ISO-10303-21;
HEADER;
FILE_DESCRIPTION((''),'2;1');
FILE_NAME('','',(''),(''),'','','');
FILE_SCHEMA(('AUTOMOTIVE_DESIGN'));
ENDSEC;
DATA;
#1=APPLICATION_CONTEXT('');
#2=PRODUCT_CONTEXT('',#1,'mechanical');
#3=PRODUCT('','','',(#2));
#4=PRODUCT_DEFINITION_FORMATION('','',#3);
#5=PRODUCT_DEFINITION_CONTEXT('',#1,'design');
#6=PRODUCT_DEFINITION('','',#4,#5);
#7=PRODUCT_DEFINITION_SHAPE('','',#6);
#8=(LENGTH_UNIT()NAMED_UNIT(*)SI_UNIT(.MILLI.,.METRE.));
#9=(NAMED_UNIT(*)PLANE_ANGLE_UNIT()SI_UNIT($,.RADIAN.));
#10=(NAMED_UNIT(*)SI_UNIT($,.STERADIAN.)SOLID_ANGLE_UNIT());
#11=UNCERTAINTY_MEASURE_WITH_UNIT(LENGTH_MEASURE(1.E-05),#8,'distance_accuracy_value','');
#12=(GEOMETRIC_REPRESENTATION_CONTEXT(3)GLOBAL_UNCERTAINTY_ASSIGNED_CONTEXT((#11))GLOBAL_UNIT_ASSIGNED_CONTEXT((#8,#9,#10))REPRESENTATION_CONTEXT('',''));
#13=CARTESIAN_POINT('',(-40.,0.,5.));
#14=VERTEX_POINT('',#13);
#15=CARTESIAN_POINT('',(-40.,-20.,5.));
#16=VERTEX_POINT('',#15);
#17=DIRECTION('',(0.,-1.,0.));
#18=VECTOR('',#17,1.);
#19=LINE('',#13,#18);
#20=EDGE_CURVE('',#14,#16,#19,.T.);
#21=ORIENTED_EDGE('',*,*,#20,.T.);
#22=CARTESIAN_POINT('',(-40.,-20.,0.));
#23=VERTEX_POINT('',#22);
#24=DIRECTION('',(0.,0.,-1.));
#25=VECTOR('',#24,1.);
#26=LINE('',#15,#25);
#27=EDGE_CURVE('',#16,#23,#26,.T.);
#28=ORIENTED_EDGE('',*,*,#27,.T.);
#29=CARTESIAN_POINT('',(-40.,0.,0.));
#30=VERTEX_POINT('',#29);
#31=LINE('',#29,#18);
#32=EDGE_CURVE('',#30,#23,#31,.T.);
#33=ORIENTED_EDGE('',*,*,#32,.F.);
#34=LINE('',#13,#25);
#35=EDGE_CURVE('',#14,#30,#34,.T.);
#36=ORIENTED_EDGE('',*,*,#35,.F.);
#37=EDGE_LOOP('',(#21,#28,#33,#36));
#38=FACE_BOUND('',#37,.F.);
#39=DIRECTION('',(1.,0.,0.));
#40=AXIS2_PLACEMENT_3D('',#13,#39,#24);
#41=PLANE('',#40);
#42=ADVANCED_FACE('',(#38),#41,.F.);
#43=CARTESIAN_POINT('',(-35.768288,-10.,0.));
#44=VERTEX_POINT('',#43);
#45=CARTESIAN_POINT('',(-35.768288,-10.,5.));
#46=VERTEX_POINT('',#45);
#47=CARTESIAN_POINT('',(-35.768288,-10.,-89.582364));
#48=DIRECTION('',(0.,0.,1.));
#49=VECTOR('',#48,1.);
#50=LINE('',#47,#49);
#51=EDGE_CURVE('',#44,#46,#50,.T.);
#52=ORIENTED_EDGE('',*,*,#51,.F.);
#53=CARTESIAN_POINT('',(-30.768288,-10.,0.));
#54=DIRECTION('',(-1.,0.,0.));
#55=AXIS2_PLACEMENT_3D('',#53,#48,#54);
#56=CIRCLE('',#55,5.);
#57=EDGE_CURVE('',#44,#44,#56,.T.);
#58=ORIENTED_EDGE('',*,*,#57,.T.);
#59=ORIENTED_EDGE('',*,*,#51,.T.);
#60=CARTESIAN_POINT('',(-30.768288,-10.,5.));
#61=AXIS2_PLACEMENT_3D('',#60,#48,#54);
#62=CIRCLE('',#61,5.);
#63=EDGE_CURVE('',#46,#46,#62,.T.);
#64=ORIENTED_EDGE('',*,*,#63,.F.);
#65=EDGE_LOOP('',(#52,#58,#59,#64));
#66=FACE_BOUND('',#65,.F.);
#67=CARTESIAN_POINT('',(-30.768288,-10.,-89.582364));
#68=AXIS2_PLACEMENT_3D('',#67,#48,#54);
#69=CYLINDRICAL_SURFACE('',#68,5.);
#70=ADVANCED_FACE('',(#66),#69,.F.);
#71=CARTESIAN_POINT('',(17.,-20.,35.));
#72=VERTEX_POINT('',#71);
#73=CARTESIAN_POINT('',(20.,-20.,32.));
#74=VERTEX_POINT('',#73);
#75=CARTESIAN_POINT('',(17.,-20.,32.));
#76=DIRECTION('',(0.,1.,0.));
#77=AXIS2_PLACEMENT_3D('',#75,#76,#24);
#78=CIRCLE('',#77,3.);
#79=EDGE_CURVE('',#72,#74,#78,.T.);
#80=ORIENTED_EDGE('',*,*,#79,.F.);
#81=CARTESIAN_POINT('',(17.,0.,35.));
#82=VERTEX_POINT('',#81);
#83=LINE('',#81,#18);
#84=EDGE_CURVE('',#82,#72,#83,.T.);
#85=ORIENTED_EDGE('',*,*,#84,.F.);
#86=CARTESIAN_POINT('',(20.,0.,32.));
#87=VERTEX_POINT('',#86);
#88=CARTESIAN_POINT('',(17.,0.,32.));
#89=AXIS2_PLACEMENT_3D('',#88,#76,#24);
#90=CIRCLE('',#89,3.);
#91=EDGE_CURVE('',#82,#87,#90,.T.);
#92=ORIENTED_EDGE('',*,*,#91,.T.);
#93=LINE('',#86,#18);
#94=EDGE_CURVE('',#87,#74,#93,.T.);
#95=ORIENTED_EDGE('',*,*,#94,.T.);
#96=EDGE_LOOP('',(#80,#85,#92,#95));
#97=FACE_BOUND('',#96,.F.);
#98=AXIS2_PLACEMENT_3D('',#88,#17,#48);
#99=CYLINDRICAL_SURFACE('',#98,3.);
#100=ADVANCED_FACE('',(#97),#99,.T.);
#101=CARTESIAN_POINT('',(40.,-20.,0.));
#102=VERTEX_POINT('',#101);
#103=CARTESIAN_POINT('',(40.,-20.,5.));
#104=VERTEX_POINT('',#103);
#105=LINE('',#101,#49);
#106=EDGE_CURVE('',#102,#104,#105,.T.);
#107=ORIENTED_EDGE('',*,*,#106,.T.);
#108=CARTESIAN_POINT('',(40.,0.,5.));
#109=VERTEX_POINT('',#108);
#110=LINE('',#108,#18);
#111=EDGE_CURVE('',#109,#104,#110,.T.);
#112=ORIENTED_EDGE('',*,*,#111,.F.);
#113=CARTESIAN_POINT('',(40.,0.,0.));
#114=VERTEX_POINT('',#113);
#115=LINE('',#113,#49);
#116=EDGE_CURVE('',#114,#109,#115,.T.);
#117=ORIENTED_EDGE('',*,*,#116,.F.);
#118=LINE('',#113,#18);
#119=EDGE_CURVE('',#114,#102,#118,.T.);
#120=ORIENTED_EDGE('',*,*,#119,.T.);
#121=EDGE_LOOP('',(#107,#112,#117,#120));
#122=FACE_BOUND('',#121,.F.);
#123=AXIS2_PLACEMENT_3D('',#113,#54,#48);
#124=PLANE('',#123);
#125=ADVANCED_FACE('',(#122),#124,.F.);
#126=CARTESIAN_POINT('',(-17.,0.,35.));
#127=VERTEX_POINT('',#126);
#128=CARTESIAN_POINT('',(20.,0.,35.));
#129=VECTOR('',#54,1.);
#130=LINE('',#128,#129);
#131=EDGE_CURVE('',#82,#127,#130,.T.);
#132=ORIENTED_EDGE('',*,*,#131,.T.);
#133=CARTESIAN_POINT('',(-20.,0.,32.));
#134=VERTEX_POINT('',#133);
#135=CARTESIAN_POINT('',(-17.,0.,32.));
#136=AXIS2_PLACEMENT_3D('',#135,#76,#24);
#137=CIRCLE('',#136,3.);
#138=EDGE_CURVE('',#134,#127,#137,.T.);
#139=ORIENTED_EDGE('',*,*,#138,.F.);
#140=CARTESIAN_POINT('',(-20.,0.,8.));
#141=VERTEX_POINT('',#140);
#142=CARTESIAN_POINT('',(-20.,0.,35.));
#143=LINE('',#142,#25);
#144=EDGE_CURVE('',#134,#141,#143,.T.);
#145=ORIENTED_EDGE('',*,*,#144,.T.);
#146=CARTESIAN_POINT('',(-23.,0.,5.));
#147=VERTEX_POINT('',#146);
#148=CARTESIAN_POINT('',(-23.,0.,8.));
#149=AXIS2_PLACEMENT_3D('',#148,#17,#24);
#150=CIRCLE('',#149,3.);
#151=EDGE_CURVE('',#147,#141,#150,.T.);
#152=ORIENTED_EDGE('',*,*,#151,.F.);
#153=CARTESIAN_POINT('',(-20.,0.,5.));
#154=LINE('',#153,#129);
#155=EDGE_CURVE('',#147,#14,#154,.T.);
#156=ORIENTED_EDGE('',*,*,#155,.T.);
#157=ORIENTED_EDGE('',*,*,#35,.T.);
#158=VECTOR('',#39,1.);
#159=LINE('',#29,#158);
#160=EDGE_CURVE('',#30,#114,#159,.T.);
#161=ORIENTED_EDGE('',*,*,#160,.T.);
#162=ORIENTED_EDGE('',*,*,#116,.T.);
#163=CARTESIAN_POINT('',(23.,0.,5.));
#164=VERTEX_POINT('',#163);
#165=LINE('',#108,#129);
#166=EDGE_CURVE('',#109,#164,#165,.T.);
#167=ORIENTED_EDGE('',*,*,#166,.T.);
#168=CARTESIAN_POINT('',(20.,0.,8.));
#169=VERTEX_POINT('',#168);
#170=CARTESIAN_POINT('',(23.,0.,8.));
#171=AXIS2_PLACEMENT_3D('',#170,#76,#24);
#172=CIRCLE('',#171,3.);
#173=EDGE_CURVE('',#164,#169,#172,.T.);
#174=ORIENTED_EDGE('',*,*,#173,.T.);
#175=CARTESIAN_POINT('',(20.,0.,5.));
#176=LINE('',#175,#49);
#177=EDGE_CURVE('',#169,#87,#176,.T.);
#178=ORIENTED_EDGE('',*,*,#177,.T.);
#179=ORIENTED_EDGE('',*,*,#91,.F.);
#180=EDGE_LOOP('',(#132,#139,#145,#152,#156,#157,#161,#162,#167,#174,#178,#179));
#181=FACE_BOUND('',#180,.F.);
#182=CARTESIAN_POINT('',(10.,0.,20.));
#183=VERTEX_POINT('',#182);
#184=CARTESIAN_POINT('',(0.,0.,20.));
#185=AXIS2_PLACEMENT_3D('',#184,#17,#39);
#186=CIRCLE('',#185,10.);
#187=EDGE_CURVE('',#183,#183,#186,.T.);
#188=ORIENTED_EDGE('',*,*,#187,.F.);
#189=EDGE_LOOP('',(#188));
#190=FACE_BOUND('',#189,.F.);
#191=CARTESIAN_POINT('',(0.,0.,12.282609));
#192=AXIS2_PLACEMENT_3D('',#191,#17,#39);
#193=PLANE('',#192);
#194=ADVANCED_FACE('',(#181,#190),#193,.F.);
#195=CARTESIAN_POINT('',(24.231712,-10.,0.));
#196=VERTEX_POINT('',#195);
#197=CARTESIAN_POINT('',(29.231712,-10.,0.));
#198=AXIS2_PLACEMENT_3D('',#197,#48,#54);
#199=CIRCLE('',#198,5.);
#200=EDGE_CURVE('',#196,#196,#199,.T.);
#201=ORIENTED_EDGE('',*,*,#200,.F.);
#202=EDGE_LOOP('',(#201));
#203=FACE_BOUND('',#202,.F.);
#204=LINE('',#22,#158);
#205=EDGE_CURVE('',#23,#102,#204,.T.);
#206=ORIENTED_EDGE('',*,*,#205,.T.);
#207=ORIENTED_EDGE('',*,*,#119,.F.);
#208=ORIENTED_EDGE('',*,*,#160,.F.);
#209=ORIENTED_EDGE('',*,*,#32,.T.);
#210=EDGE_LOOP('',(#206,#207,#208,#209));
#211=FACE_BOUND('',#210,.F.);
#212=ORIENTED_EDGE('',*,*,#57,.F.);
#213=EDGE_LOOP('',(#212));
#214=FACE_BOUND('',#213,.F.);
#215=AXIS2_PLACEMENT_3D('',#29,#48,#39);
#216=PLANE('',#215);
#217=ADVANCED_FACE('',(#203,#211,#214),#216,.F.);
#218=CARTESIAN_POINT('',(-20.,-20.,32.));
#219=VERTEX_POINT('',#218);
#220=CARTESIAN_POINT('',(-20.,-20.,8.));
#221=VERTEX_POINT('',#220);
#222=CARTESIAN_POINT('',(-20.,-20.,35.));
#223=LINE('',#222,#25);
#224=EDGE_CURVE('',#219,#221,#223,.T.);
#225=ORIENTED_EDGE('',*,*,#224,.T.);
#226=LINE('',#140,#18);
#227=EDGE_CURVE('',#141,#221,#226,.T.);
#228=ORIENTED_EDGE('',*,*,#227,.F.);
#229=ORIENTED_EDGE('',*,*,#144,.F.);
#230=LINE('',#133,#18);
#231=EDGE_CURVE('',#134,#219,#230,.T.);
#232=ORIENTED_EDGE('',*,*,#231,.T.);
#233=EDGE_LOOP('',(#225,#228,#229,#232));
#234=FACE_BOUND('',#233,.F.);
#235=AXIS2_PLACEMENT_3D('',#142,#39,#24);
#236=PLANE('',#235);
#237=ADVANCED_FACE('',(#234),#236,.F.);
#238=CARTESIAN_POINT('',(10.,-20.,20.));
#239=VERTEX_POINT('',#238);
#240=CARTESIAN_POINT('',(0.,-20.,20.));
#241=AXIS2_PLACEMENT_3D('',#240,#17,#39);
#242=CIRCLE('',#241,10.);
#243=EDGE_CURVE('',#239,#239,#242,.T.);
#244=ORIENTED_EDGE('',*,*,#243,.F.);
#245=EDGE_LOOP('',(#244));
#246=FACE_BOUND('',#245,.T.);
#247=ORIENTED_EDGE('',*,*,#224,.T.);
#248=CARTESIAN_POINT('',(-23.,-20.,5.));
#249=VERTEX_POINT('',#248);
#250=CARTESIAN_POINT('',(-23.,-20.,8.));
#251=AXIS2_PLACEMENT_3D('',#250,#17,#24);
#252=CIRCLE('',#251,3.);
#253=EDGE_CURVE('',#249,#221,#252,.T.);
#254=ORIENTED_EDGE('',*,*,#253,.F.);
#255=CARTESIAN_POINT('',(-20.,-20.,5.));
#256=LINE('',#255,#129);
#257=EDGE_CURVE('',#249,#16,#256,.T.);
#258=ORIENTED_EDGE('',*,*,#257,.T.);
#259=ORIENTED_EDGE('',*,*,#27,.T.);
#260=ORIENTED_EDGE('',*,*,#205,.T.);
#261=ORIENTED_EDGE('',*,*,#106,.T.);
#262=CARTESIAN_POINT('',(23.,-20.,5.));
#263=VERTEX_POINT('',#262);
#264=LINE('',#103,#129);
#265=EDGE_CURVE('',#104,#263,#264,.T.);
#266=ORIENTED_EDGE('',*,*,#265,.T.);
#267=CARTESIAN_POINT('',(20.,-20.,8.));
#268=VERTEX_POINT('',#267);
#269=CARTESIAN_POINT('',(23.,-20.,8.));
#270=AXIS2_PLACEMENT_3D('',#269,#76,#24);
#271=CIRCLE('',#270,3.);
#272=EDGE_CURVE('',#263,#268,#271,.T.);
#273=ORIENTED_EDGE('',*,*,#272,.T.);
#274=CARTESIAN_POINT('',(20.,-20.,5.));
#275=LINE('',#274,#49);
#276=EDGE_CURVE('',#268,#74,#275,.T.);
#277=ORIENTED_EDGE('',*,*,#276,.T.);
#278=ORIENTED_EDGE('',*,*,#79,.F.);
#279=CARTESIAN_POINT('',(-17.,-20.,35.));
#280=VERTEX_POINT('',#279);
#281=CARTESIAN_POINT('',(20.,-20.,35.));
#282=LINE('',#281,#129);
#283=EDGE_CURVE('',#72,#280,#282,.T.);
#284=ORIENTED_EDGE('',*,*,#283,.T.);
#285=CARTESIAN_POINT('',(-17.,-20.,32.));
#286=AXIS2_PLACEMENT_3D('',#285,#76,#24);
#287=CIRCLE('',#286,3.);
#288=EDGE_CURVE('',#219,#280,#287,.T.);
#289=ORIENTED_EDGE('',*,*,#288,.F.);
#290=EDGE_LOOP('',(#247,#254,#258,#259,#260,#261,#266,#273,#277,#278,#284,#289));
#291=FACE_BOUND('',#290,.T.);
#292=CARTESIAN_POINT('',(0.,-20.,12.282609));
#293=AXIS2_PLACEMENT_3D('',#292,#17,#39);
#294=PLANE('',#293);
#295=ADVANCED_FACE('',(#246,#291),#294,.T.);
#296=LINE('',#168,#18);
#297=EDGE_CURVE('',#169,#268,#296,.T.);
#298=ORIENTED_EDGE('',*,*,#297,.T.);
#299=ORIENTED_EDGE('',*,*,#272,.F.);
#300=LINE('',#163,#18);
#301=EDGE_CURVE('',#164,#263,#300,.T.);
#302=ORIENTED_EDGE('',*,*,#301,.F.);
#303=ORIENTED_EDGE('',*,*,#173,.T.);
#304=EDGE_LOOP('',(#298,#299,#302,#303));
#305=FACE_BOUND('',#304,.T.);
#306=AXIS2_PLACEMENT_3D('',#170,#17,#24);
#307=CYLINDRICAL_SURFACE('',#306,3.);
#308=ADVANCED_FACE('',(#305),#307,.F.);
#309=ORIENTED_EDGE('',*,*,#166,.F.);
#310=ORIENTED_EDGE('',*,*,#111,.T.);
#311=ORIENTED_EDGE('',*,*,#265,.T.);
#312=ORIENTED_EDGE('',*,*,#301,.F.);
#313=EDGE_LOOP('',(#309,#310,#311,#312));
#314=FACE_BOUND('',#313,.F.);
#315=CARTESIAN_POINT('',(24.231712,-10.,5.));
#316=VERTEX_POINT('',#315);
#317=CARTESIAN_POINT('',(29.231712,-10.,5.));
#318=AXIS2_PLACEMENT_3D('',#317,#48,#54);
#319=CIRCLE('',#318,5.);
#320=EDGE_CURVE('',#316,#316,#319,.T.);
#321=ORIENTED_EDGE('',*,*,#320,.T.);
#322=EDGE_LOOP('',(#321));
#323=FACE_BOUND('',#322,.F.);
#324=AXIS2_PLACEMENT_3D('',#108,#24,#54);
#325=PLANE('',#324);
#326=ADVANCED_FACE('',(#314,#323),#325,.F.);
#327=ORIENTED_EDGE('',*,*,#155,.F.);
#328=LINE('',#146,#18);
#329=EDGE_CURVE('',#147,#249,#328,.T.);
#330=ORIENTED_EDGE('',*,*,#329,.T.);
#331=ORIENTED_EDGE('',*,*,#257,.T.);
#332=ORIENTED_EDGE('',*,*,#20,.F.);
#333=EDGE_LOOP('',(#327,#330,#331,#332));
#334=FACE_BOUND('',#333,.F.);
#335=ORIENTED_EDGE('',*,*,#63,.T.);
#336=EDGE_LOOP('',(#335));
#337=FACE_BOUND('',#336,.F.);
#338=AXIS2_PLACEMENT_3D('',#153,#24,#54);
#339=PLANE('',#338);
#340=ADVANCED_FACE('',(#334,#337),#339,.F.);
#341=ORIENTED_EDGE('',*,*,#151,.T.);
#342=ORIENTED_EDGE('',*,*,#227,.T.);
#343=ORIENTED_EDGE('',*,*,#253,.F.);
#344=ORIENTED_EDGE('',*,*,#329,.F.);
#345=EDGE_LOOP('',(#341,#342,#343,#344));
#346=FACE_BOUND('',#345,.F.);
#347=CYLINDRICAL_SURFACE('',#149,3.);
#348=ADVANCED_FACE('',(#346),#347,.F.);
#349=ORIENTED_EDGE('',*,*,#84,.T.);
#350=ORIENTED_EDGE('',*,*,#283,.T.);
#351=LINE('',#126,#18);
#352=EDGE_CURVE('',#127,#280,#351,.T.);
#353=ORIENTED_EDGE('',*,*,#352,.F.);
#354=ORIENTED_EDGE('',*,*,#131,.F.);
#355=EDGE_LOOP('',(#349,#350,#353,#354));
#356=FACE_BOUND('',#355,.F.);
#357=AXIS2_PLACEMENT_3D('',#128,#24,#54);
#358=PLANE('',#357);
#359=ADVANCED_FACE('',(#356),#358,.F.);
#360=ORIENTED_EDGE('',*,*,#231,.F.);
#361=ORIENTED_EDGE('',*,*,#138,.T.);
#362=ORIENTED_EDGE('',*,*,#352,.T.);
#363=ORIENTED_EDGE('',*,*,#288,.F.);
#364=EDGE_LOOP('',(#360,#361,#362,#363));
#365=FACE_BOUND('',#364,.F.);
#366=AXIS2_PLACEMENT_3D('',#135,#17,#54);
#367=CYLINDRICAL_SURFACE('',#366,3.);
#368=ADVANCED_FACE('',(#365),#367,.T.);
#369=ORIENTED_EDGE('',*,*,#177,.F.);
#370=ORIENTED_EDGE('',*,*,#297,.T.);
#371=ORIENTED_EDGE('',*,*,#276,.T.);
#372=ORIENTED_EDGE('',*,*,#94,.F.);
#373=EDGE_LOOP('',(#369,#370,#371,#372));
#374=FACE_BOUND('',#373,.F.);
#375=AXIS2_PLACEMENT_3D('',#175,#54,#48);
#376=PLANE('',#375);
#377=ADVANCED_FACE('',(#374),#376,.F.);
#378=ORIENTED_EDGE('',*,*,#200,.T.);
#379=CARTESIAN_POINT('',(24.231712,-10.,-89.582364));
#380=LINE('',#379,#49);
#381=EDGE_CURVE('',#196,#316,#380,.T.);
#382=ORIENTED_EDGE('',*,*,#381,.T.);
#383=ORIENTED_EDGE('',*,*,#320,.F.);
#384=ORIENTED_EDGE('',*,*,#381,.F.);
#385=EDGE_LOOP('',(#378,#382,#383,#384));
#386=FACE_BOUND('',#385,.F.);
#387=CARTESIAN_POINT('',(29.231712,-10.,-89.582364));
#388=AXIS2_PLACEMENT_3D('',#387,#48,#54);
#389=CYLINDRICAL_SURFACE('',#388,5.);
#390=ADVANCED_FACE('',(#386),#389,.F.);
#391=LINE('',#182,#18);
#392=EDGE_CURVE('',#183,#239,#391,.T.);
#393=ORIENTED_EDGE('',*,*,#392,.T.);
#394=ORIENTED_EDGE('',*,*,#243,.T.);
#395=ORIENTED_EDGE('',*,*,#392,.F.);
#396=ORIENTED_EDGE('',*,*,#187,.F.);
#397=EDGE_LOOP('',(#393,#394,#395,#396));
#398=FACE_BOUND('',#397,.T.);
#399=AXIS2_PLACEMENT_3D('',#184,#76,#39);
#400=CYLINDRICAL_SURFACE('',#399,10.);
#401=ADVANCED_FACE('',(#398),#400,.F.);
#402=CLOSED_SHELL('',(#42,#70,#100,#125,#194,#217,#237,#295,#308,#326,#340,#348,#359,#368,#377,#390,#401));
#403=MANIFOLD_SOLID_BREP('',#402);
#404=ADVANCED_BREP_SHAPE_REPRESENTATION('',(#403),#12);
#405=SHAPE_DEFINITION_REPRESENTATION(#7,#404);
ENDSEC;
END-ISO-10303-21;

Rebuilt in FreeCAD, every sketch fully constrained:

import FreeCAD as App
import Part
import Sketcher
Q = App.Units.Quantity


def edges_at(feature, points):
    """Names of the edges that pass closest to the given points."""
    edges = feature.Shape.Edges
    near = lambda p: min(range(len(edges)), key=lambda i: edges[i].distToShape(Part.Vertex(*p))[0])
    return sorted({f"Edge{near(p) + 1}" for p in points})

doc = App.newDocument("Part")
params = doc.addObject("Spreadsheet::Sheet", "Params")
for row, (alias, value) in enumerate([
    ("sketch1_diameter", "20 mm"),
    ("sketch1_width", "80 mm"),
    ("sketch1_width2", "20 mm"),
    ("sketch1_height", "5 mm"),
    ("sketch1_height2", "30 mm"),
    ("pad1_length", "20 mm"),
    ("fillet_radius", "3 mm"),
    ("sketch2_diameter", "10 mm"),
    ("hole_diameter", "10 mm"),
], start=1):
    params.set(f"A{row}", alias)
    params.set(f"B{row}", "=" + value)
    params.setAlias(f"B{row}", alias)

body = doc.addObject("PartDesign::Body", "Body")

sketch1 = body.newObject("Sketcher::SketchObject", "Sketch")
sketch1.AttachmentSupport = (doc.getObject("XZ_Plane"), [""])
sketch1.MapMode = "FlatFace"
sketch1.addGeometry([
    Part.LineSegment(App.Vector(-40, 5, 0), App.Vector(-40, 0, 0)),
    Part.LineSegment(App.Vector(-40, 0, 0), App.Vector(40, 0, 0)),
    Part.LineSegment(App.Vector(40, 0, 0), App.Vector(40, 5, 0)),
    Part.LineSegment(App.Vector(40, 5, 0), App.Vector(20, 5, 0)),
    Part.LineSegment(App.Vector(20, 5, 0), App.Vector(20, 35, 0)),
    Part.LineSegment(App.Vector(20, 35, 0), App.Vector(-20, 35, 0)),
    Part.LineSegment(App.Vector(-20, 35, 0), App.Vector(-20, 5, 0)),
    Part.LineSegment(App.Vector(-20, 5, 0), App.Vector(-40, 5, 0)),
    Part.Circle(App.Vector(0, 20, 0), App.Vector(0, 0, 1), 10),
], False)
sketch1.addConstraint([
    Sketcher.Constraint("Coincident", 0, 2, 1, 1),
    Sketcher.Constraint("Coincident", 1, 2, 2, 1),
    Sketcher.Constraint("Coincident", 2, 2, 3, 1),
    Sketcher.Constraint("Coincident", 3, 2, 4, 1),
    Sketcher.Constraint("Coincident", 4, 2, 5, 1),
    Sketcher.Constraint("Coincident", 5, 2, 6, 1),
    Sketcher.Constraint("Coincident", 6, 2, 7, 1),
    Sketcher.Constraint("Coincident", 7, 2, 0, 1),
    Sketcher.Constraint("Vertical", 0),
    Sketcher.Constraint("Horizontal", 1),
    Sketcher.Constraint("Vertical", 2),
    Sketcher.Constraint("Horizontal", 3),
    Sketcher.Constraint("Vertical", 4),
    Sketcher.Constraint("Horizontal", 5),
    Sketcher.Constraint("Vertical", 6),
    Sketcher.Constraint("Horizontal", 7),
    Sketcher.Constraint("Symmetric", 0, 2, 1, 2, -1, 1),
    Sketcher.Constraint("Symmetric", 3, 2, 6, 2, -2),
    Sketcher.Constraint("PointOnObject", 8, 3, -2),
    Sketcher.Constraint("Diameter", 8, Q("20 mm")),
    Sketcher.Constraint("DistanceX", 1, 1, 1, 2, Q("80 mm")),
    Sketcher.Constraint("DistanceX", 3, 2, 3, 1, Q("20 mm")),
    Sketcher.Constraint("DistanceY", 0, 2, 0, 1, Q("5 mm")),
    Sketcher.Constraint("DistanceY", 4, 1, 4, 2, Q("30 mm")),
    Sketcher.Constraint("DistanceY", -1, 1, 8, 3, Q("20 mm")),
])
sketch1.setExpression("Constraints[19]", "Params.sketch1_diameter")
sketch1.setExpression("Constraints[20]", "Params.sketch1_width")
sketch1.setExpression("Constraints[21]", "Params.sketch1_width2")
sketch1.setExpression("Constraints[22]", "Params.sketch1_height")
sketch1.setExpression("Constraints[23]", "Params.sketch1_height2")
pad1 = body.newObject("PartDesign::Pad", "Pad")
pad1.Profile = sketch1
pad1.setExpression("Length", "Params.pad1_length")
doc.recompute()

fillet = body.newObject("PartDesign::Fillet", "Fillet")
fillet.Base = (pad1, edges_at(pad1, [
    (20, -10, 35),
    (20, -10, 5),
    (-20, -10, 35),
    (-20, -10, 5),
]))
fillet.setExpression("Radius", "Params.fillet_radius")

sketch2 = body.newObject("Sketcher::SketchObject", "Sketch001")
sketch2.AttachmentSupport = (doc.getObject("XY_Plane"), [""])
sketch2.MapMode = "FlatFace"
sketch2.addGeometry([
    Part.Circle(App.Vector(-31, -10, 0), App.Vector(0, 0, 1), 5),
    Part.Circle(App.Vector(29, -10, 0), App.Vector(0, 0, 1), 5),
], False)
sketch2.addConstraint([
    Sketcher.Constraint("Equal", 0, 1),
    Sketcher.Constraint("Horizontal", 0, 3, 1, 3),
    Sketcher.Constraint("Diameter", 0, Q("10 mm")),
    Sketcher.Constraint("DistanceY", 0, 3, -1, 1, Q("10 mm")),
    Sketcher.Constraint("DistanceX", 0, 3, 1, 3, Q("60 mm")),
    Sketcher.Constraint("DistanceX", 0, 3, -1, 1, Q("30.768288 mm")),
])
sketch2.setExpression("Constraints[2]", "Params.sketch2_diameter")
doc.recompute()
hole = body.newObject("PartDesign::Hole", "Hole")
hole.Profile = sketch2
hole.ThreadType = "None"
hole.setExpression("Diameter", "Params.hole_diameter")
hole.DepthType = "ThroughAll"
hole.Reversed = True

doc.recompute()
